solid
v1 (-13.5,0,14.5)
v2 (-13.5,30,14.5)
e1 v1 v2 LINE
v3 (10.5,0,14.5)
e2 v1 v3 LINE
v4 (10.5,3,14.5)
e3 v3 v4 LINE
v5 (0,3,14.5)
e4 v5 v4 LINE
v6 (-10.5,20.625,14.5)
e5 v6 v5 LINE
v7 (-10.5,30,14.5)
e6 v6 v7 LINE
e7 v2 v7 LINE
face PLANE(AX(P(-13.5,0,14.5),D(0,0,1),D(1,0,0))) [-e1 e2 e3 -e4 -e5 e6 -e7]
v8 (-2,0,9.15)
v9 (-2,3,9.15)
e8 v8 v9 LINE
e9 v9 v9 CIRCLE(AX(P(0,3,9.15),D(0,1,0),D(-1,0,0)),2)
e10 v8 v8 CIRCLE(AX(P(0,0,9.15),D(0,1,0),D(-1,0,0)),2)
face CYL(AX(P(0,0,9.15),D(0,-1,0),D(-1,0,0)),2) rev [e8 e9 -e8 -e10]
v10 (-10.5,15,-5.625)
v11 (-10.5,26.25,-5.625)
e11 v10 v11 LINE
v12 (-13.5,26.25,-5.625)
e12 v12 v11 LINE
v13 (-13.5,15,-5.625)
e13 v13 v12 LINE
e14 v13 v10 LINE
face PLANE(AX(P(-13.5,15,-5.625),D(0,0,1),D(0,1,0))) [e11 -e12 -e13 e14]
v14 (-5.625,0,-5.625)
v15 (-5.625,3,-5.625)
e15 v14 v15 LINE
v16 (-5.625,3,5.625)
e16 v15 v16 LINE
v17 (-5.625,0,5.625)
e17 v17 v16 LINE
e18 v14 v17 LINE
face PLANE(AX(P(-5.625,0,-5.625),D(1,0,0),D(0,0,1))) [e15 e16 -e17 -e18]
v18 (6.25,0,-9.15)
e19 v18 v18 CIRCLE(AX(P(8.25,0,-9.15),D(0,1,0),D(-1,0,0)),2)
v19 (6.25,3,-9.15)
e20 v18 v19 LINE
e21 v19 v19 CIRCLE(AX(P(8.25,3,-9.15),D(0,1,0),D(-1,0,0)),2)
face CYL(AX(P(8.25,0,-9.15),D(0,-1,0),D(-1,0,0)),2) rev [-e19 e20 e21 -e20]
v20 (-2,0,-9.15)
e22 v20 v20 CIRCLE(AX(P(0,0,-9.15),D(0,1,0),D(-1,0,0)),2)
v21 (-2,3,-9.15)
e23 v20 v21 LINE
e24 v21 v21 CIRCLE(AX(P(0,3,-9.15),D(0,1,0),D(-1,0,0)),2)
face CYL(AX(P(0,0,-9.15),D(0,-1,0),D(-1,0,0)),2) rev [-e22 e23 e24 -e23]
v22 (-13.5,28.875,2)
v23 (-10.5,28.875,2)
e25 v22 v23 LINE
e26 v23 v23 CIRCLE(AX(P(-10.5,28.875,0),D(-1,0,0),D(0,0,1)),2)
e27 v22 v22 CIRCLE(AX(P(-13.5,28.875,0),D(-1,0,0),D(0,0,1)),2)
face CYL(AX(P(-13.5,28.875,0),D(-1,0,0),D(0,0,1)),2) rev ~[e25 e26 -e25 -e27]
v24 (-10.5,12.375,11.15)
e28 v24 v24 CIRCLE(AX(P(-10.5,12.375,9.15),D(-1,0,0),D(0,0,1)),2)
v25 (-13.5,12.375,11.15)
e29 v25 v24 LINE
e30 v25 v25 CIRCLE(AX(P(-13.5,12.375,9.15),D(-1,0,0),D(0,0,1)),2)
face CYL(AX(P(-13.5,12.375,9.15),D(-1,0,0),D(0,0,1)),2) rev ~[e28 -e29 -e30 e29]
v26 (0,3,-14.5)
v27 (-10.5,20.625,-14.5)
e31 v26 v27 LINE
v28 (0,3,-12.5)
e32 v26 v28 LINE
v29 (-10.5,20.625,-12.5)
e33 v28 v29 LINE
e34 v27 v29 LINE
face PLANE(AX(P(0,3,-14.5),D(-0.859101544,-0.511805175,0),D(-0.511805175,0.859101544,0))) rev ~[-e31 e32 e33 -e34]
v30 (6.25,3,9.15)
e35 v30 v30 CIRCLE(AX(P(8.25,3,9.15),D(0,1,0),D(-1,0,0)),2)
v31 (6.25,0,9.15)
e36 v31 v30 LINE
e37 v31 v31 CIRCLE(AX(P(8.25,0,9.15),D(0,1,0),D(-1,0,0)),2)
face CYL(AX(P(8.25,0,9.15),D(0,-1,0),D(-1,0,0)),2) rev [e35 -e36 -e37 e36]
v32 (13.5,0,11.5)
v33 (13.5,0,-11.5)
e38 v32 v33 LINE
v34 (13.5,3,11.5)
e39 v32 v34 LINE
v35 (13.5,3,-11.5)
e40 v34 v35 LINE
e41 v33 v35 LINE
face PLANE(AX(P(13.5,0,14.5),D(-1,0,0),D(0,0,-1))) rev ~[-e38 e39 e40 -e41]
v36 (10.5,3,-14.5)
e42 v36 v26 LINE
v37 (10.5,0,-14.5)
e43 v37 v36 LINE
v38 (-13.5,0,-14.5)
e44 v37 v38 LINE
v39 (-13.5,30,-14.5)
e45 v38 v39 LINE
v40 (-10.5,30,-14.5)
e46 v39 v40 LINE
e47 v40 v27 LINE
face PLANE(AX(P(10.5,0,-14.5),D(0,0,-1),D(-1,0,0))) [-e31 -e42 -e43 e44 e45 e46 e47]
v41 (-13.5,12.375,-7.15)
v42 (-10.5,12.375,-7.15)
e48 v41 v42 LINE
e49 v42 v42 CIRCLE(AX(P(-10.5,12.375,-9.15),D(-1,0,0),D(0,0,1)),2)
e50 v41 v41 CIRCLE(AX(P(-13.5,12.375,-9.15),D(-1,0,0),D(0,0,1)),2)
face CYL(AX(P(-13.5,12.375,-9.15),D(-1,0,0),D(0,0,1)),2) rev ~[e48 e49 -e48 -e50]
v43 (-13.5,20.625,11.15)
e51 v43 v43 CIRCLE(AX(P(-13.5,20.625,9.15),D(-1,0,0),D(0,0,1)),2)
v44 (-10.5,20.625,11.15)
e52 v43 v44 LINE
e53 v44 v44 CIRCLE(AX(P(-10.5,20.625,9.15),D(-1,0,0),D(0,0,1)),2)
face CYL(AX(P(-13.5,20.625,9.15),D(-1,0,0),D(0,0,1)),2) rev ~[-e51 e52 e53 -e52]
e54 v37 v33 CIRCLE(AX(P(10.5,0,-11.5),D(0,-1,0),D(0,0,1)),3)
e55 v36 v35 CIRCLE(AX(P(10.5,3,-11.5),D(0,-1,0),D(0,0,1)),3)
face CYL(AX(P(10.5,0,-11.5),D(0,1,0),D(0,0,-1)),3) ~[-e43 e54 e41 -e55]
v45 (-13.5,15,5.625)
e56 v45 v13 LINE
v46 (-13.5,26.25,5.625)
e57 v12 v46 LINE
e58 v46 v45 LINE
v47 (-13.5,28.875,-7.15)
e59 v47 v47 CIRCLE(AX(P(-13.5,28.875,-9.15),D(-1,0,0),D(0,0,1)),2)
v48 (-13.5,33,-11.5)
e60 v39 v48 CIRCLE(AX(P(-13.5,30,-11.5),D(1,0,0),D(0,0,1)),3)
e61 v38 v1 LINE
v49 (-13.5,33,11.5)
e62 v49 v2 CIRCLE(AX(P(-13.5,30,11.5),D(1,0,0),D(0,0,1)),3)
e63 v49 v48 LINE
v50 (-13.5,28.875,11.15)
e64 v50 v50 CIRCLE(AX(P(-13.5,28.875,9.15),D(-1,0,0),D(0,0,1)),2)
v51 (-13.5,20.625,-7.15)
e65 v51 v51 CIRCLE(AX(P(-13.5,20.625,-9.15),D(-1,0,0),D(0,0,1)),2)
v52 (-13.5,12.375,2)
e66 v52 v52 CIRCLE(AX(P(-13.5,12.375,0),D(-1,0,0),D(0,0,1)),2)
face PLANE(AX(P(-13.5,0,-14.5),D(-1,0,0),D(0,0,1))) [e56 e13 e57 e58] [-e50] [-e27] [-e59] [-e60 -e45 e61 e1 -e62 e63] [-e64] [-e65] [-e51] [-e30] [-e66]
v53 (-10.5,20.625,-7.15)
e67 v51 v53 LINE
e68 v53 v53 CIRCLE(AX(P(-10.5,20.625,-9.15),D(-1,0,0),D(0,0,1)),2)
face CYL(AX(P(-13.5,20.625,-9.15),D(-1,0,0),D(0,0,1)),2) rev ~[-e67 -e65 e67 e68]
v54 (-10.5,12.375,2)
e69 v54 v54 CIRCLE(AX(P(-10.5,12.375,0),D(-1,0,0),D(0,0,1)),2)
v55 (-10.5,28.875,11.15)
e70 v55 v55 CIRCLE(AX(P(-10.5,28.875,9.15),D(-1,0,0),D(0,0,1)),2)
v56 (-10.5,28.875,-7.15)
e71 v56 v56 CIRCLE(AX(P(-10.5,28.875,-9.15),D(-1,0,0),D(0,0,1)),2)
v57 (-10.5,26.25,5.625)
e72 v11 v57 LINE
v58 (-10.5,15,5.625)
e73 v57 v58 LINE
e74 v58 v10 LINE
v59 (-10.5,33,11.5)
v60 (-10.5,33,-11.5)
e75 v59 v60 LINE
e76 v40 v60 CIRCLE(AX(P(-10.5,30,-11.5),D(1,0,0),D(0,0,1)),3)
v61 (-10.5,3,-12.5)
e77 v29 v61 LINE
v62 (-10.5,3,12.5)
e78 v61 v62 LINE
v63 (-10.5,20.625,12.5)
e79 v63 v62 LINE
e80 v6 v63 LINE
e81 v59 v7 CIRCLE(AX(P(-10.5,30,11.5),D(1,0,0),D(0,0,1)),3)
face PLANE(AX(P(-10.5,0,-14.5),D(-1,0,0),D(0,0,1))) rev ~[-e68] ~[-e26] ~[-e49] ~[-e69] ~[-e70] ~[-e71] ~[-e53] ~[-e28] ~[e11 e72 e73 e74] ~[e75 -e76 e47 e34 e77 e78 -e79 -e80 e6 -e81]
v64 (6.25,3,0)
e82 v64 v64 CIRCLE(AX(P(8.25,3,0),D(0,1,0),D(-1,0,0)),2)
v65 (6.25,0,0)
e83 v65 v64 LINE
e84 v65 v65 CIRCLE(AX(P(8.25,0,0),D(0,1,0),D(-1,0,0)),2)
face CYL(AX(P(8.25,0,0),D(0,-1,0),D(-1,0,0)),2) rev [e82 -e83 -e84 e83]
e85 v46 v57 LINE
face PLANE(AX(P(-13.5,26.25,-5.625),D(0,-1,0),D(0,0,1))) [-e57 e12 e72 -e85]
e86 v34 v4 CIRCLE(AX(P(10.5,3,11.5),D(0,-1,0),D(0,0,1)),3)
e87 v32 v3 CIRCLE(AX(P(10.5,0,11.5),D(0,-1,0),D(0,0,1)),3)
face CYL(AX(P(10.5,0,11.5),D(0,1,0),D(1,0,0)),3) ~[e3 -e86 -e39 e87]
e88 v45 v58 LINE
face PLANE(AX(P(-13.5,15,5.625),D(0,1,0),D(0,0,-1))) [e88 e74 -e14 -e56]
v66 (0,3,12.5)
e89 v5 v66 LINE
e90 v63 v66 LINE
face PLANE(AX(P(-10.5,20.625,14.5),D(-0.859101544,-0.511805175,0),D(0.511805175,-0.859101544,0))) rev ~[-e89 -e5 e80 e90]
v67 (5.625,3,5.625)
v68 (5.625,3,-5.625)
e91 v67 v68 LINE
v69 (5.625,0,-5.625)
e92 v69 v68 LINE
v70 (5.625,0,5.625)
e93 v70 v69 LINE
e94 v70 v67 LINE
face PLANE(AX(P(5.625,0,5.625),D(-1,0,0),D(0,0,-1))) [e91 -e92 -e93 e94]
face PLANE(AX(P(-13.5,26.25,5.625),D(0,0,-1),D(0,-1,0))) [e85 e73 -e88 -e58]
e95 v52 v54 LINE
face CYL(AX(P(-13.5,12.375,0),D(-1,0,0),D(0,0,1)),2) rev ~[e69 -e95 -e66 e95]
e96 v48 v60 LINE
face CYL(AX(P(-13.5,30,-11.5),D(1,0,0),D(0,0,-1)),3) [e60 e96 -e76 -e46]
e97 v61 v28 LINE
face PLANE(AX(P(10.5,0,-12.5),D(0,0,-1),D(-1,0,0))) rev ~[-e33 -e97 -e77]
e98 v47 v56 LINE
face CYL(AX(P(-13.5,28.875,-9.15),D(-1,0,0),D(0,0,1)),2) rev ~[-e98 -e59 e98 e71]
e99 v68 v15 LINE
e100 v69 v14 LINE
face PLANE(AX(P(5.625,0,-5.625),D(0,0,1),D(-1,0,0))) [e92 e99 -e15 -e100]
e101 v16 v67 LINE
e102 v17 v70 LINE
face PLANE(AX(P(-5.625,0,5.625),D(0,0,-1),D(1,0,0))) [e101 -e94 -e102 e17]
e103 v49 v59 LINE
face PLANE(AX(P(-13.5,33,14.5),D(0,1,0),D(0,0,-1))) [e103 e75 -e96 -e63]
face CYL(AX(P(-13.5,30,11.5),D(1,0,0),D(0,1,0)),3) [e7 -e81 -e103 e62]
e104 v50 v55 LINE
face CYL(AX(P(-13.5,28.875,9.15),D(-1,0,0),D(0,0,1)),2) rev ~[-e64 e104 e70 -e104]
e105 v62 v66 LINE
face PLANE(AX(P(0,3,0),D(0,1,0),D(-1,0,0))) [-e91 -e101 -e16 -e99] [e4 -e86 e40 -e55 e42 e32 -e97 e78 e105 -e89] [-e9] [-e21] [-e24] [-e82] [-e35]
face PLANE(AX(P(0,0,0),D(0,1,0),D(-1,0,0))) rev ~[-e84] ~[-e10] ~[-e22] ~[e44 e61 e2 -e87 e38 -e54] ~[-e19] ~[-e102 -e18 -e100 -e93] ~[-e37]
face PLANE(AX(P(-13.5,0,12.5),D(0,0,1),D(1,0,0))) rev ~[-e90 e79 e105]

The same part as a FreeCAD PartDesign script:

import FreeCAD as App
import Part
import Sketcher
from FreeCAD import Vector


def edges_at(feature, points):
    """Names of the edges that pass closest to the given points."""
    edges = feature.Shape.Edges
    near = lambda p: min(range(len(edges)), key=lambda i: edges[i].distToShape(Part.Vertex(*p))[0])
    return sorted({f"Edge{near(p) + 1}" for p in points})


def add_polygon(sketch, points):
    """Adds a closed chain of lines whose ends are joined by coincident constraints."""
    first, n = sketch.GeometryCount, len(points)
    for a, b in zip(points, points[1:] + points[:1]):
        sketch.addGeometry(Part.LineSegment(App.Vector(*a, 0), App.Vector(*b, 0)), False)
    for i in range(n):
        sketch.addConstraint(Sketcher.Constraint("Coincident", first + i, 2, first + (i + 1) % n, 1))

doc = App.newDocument("Part")
params = doc.addObject("Spreadsheet::Sheet", "Params")
for row, (alias, value) in enumerate([
    ("sketch1_diameter", "4 mm"),
    ("sketch1_width", "27 mm"),
    ("sketch1_height", "29 mm"),
    ("sketch1_width2", "11.25 mm"),
    ("pad1_length", "3 mm"),
    ("fillet_radius", "3 mm"),
    ("sketch2_diameter", "4 mm"),
    ("sketch2_height", "29 mm"),
    ("sketch2_width", "11.25 mm"),
    ("sketch2_width2", "30 mm"),
    ("pad2_length", "3 mm"),
    ("fillet2_radius", "3 mm"),
    ("sketch3_width", "10.5 mm"),
    ("pad3_length", "2 mm"),
    ("sketch4_width", "10.5 mm"),
    ("pad4_length", "2 mm"),
], start=1):
    params.set(f"A{row}", alias)
    params.set(f"B{row}", "=" + value)
    params.setAlias(f"B{row}", alias)

body = doc.addObject("PartDesign::Body", "Body")

# Sketch on XZ plane
sketch1 = body.newObject("Sketcher::SketchObject", "Sketch")
sketch1.AttachmentSupport = (doc.getObject("XZ_Plane"), [""])
sketch1.MapMode = "FlatFace"
add_polygon(sketch1, [(-13.5, -14.5), (-13.5, 14.5), (13.5, 14.5), (13.5, -14.5)])  # lines 0-3
sketch1.addGeometry(Part.Circle(Vector(8.2, -9.2, 0), Vector(0, 0, 1), 2), False)  # 4
sketch1.addGeometry(Part.Circle(Vector(0, -9.2, 0), Vector(0, 0, 1), 2), False)  # 5
sketch1.addGeometry(Part.Circle(Vector(8.2, 0, 0), Vector(0, 0, 1), 2), False)  # 6
sketch1.addGeometry(Part.Circle(Vector(8.2, 9.2, 0), Vector(0, 0, 1), 2), False)  # 7
add_polygon(sketch1, [(5.6, 5.6), (-5.6, 5.6), (-5.6, -5.6), (5.6, -5.6)])  # lines 8-11
sketch1.addGeometry(Part.Circle(Vector(0, 9.2, 0), Vector(0, 0, 1), 2), False)  # 12
sketch1.addConstraint([
    Sketcher.Constraint("Vertical", 0),
    Sketcher.Constraint("Horizontal", 1),
    Sketcher.Constraint("Vertical", 2),
    Sketcher.Constraint("Horizontal", 3),
    Sketcher.Constraint("Horizontal", 8),
    Sketcher.Constraint("Vertical", 9),
    Sketcher.Constraint("Horizontal", 10),
    Sketcher.Constraint("Vertical", 11),
    Sketcher.Constraint("Equal", 4, 5),
    Sketcher.Constraint("Equal", 5, 6),
    Sketcher.Constraint("Equal", 6, 7),
    Sketcher.Constraint("Equal", 7, 12),
    Sketcher.Constraint("Symmetric", 5, 3, 12, 3, -1, 1),
    Sketcher.Constraint("Symmetric", 0, 2, 2, 2, -1, 1),
    Sketcher.Constraint("Symmetric", 8, 2, 10, 2, -1, 1),
    Sketcher.Constraint("Symmetric", 4, 3, 7, 3, -1),
    Sketcher.Constraint("PointOnObject", 5, 3, -2),
    Sketcher.Constraint("PointOnObject", 6, 3, -1),
    Sketcher.Constraint("Horizontal", 4, 3, 5, 3),
    Sketcher.Constraint("Vertical", 4, 3, 6, 3),
    Sketcher.Constraint("Equal", 10, 9),
    Sketcher.Constraint("Diameter", 4, 4.0),
    Sketcher.Constraint("DistanceX", 1, 1, 1, 2, 27.0),
    Sketcher.Constraint("DistanceY", 0, 1, 0, 2, 29.0),
    Sketcher.Constraint("DistanceX", 8, 2, 8, 1, 11.25),
    Sketcher.Constraint("DistanceX", -1, 1, 4, 3, 8.25),
    Sketcher.Constraint("DistanceY", 4, 3, -1, 1, 9.15),
])
sketch1.setExpression("Constraints[29]", "Params.sketch1_diameter")
sketch1.setExpression("Constraints[30]", "Params.sketch1_width")
sketch1.setExpression("Constraints[31]", "Params.sketch1_height")
sketch1.setExpression("Constraints[32]", "Params.sketch1_width2")
pad1 = body.newObject("PartDesign::Pad", "Pad")
pad1.Profile = sketch1
pad1.setExpression("Length", "Params.pad1_length")
pad1.Reversed = True
doc.recompute()

fillet = body.newObject("PartDesign::Fillet", "Fillet")
fillet.Base = (pad1, edges_at(pad1, [(13.5, 1.5, 14.5), (13.5, 1.5, -14.5)]))
fillet.setExpression("Radius", "Params.fillet_radius")

# Sketch on YZ plane
sketch2 = body.newObject("Sketcher::SketchObject", "Sketch001")
sketch2.AttachmentSupport = (doc.getObject("YZ_Plane"), [""])
sketch2.MapMode = "FlatFace"
sketch2.AttachmentOffset = App.Placement(Vector(0, 0, -13.5), App.Rotation())
add_polygon(sketch2, [(33, -14.5), (3, -14.5), (3, 14.5), (33, 14.5)])  # lines 0-3
sketch2.addGeometry(Part.Circle(Vector(12.4, -9.2, 0), Vector(0, 0, 1), 2), False)  # 4
sketch2.addGeometry(Part.Circle(Vector(12.4, 0, 0), Vector(0, 0, 1), 2), False)  # 5
sketch2.addGeometry(Part.Circle(Vector(12.4, 9.2, 0), Vector(0, 0, 1), 2), False)  # 6
sketch2.addGeometry(Part.Circle(Vector(20.6, -9.2, 0), Vector(0, 0, 1), 2), False)  # 7
sketch2.addGeometry(Part.Circle(Vector(28.9, -9.2, 0), Vector(0, 0, 1), 2), False)  # 8
add_polygon(sketch2, [(15, -5.6), (26.2, -5.6), (26.2, 5.6), (15, 5.6)])  # lines 9-12
sketch2.addGeometry(Part.Circle(Vector(20.6, 9.2, 0), Vector(0, 0, 1), 2), False)  # 13
sketch2.addGeometry(Part.Circle(Vector(28.9, 0, 0), Vector(0, 0, 1), 2), False)  # 14
sketch2.addGeometry(Part.Circle(Vector(28.9, 9.2, 0), Vector(0, 0, 1), 2), False)  # 15
sketch2.addConstraint([
    Sketcher.Constraint("Horizontal", 0),
    Sketcher.Constraint("Vertical", 1),
    Sketcher.Constraint("Horizontal", 2),
    Sketcher.Constraint("Vertical", 3),
    Sketcher.Constraint("Horizontal", 9),
    Sketcher.Constraint("Vertical", 10),
    Sketcher.Constraint("Horizontal", 11),
    Sketcher.Constraint("Vertical", 12),
    Sketcher.Constraint("Equal", 4, 5),
    Sketcher.Constraint("Equal", 5, 6),
    Sketcher.Constraint("Equal", 6, 7),
    Sketcher.Constraint("Equal", 7, 8),
    Sketcher.Constraint("Equal", 8, 13),
    Sketcher.Constraint("Equal", 13, 14),
    Sketcher.Constraint("Equal", 14, 15),
    Sketcher.Constraint("Symmetric", 4, 3, 6, 3, -1),
    Sketcher.Constraint("Symmetric", 7, 3, 13, 3, -1),
    Sketcher.Constraint("Symmetric", 8, 3, 15, 3, -1),
    Sketcher.Constraint("PointOnObject", 5, 3, -1),
    Sketcher.Constraint("PointOnObject", 14, 3, -1),
    Sketcher.Constraint("Horizontal", 4, 3, 7, 3),
    Sketcher.Constraint("Horizontal", 7, 3, 8, 3),
    Sketcher.Constraint("Vertical", 4, 3, 5, 3),
    Sketcher.Constraint("Vertical", 8, 3, 14, 3),
    Sketcher.Constraint("Equal", 11, 10),
    Sketcher.Constraint("Diameter", 4, 4.0),
    Sketcher.Constraint("DistanceY", 1, 1, 1, 2, 29.0),
    Sketcher.Constraint("DistanceX", -1, 1, 2, 2, 33.0),
    Sketcher.Constraint("DistanceX", 9, 1, 9, 2, 11.25),
    Sketcher.Constraint("DistanceX", 0, 2, 0, 1, 30.0),
    Sketcher.Constraint("DistanceX", 4, 3, 7, 3, 8.25),
    Sketcher.Constraint("DistanceX", 7, 3, 8, 3, 8.25),
    Sketcher.Constraint("DistanceY", 0, 2, 4, 3, 5.35),
    Sketcher.Constraint("DistanceY", 6, 3, 1, 2, 5.35),
    Sketcher.Constraint("DistanceY", 9, 2, -1, 1, 5.625),
    Sketcher.Constraint("DistanceX", -1, 1, 11, 2, 15.0),
    Sketcher.Constraint("DistanceX", 15, 3, 2, 2, 4.125),
])
sketch2.setExpression("Constraints[33]", "Params.sketch2_diameter")
sketch2.setExpression("Constraints[34]", "Params.sketch2_height")
sketch2.setExpression("Constraints[36]", "Params.sketch2_width")
sketch2.setExpression("Constraints[37]", "Params.sketch2_width2")
pad2 = body.newObject("PartDesign::Pad", "Pad001")
pad2.Profile = sketch2
pad2.setExpression("Length", "Params.pad2_length")
doc.recompute()

fillet2 = body.newObject("PartDesign::Fillet", "Fillet001")
fillet2.Base = (pad2, edges_at(pad2, [(-12, 33, 14.5), (-12, 33, -14.5)]))
fillet2.setExpression("Radius", "Params.fillet2_radius")

# Sketch on XY plane
sketch3 = body.newObject("Sketcher::SketchObject", "Sketch002")
sketch3.AttachmentSupport = (doc.getObject("XY_Plane"), [""])
sketch3.MapMode = "FlatFace"
sketch3.AttachmentOffset = App.Placement(Vector(0, 0, 14.5), App.Rotation())
add_polygon(sketch3, [(-10, 3), (0, 3), (-10, 21)])  # lines 0-2
sketch3.addConstraint([
    Sketcher.Constraint("Horizontal", 0),
    Sketcher.Constraint("Vertical", 2),
    Sketcher.Constraint("PointOnObject", 0, 2, -2),
    Sketcher.Constraint("DistanceX", 0, 1, 0, 2, 10.5),
    Sketcher.Constraint("DistanceY", -1, 1, 0, 2, 3.0),
    Sketcher.Constraint("DistanceY", 2, 2, 2, 1, 17.625),
])
sketch3.setExpression("Constraints[6]", "Params.sketch3_width")
pad3 = body.newObject("PartDesign::Pad", "Pad002")
pad3.Profile = sketch3
pad3.setExpression("Length", "Params.pad3_length")
pad3.Reversed = True

# Sketch on XY plane
sketch4 = body.newObject("Sketcher::SketchObject", "Sketch003")
sketch4.AttachmentSupport = (doc.getObject("XY_Plane"), [""])
sketch4.MapMode = "FlatFace"
sketch4.AttachmentOffset = App.Placement(Vector(0, 0, -14.5), App.Rotation())
add_polygon(sketch4, [(-10, 21), (0, 3), (-10, 3)])  # lines 0-2
sketch4.addConstraint([
    Sketcher.Constraint("Horizontal", 1),
    Sketcher.Constraint("Vertical", 2),
    Sketcher.Constraint("PointOnObject", 0, 2, -2),
    Sketcher.Constraint("DistanceX", 1, 2, 1, 1, 10.5),
    Sketcher.Constraint("DistanceY", -1, 1, 0, 2, 3.0),
    Sketcher.Constraint("DistanceY", 2, 1, 2, 2, 17.625),
])
sketch4.setExpression("Constraints[6]", "Params.sketch4_width")
pad4 = body.newObject("PartDesign::Pad", "Pad003")
pad4.Profile = sketch4
pad4.setExpression("Length", "Params.pad4_length")

doc.recompute()
